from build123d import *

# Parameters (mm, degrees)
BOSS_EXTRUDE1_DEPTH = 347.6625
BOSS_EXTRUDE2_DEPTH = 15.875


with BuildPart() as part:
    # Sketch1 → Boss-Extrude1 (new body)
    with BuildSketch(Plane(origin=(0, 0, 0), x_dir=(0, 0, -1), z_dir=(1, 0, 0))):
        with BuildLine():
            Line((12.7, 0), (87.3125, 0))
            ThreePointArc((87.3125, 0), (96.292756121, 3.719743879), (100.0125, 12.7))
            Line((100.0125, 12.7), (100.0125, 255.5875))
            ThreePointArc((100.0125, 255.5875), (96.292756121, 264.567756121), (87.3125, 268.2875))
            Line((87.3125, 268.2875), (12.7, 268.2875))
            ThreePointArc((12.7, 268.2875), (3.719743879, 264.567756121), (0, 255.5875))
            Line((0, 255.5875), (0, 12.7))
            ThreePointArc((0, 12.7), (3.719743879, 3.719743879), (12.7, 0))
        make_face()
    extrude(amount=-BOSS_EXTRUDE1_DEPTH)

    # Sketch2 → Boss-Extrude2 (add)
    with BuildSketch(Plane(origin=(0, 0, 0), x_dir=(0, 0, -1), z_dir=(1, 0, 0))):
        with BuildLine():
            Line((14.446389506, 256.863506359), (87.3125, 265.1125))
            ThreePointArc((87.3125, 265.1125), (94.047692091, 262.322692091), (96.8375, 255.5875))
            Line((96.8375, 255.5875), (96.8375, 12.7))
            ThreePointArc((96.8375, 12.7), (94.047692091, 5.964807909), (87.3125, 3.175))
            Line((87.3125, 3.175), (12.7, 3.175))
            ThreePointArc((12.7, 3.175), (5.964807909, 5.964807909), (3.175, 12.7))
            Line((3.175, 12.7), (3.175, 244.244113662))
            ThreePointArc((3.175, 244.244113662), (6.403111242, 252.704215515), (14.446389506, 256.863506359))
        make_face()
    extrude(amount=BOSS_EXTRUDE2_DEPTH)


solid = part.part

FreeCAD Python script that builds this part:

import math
import FreeCAD as App
import Part
import Sketcher
from FreeCAD import Vector
Q = App.Units.Quantity

doc = App.newDocument("Part")
body = doc.addObject("PartDesign::Body", "Body")

sketch1 = doc.addObject("Sketcher::SketchObject", "Sketch")
body.addObject(sketch1)
sketch1.AttachmentSupport = (doc.YZ_Plane, [""])
sketch1.MapMode = "FlatFace"
sketch1.addGeometry([
    Part.LineSegment(Vector(0, -13, 0), Vector(0, -87, 0)),
    Part.ArcOfCircle(Part.Circle(Vector(13, -87, 0), Vector(0, 0, 1), 13), math.radians(180), math.radians(270)),
    Part.LineSegment(Vector(13, -100, 0), Vector(256, -100, 0)),
    Part.ArcOfCircle(Part.Circle(Vector(256, -87, 0), Vector(0, 0, 1), 13), math.radians(-90), math.radians(0)),
    Part.LineSegment(Vector(268, -87, 0), Vector(268, -13, 0)),
    Part.ArcOfCircle(Part.Circle(Vector(256, -13, 0), Vector(0, 0, 1), 13), math.radians(0), math.radians(90)),
    Part.LineSegment(Vector(256, 0, 0), Vector(13, 0, 0)),
    Part.ArcOfCircle(Part.Circle(Vector(13, -13, 0), Vector(0, 0, 1), 13), math.radians(90), math.radians(180)),
], False)
sketch1.addConstraint([
    Sketcher.Constraint("Tangent", 0, 2, 1, 1),
    Sketcher.Constraint("Tangent", 1, 2, 2, 1),
    Sketcher.Constraint("Tangent", 2, 2, 3, 1),
    Sketcher.Constraint("Tangent", 3, 2, 4, 1),
    Sketcher.Constraint("Tangent", 4, 2, 5, 1),
    Sketcher.Constraint("Tangent", 5, 2, 6, 1),
    Sketcher.Constraint("Tangent", 6, 2, 7, 1),
    Sketcher.Constraint("Tangent", 7, 2, 0, 1),
    Sketcher.Constraint("Vertical", 0),
    Sketcher.Constraint("Horizontal", 2),
    Sketcher.Constraint("Vertical", 4),
    Sketcher.Constraint("Horizontal", 6),
    Sketcher.Constraint("Equal", 1, 3),
    Sketcher.Constraint("Equal", 3, 5),
    Sketcher.Constraint("Equal", 5, 7),
    Sketcher.Constraint("PointOnObject", 0, 2, -2),
    Sketcher.Constraint("PointOnObject", 5, 2, -1),
    Sketcher.Constraint("Radius", 1, Q("0.5 in")),
    Sketcher.Constraint("DistanceX", 2, 1, 2, 2, Q("9.5625 in")),
    Sketcher.Constraint("DistanceY", 0, 2, 0, 1, Q("2.9375 in")),
])
pad1 = doc.addObject("PartDesign::Pad", "Pad")
body.addObject(pad1)
pad1.Profile = sketch1
pad1.Length = Q("13.6875 in")
pad1.Reversed = True

sketch2 = doc.addObject("Sketcher::SketchObject", "Sketch001")
body.addObject(sketch2)
sketch2.AttachmentSupport = (doc.YZ_Plane, [""])
sketch2.MapMode = "FlatFace"
sketch2.addGeometry([
    Part.LineSegment(Vector(265, -87, 0), Vector(257, -14, 0)),
    Part.ArcOfCircle(Part.Circle(Vector(244, -16, 0), Vector(0, 0, 1), 13), math.radians(6), math.radians(90)),
    Part.LineSegment(Vector(244, -3, 0), Vector(13, -3, 0)),
    Part.ArcOfCircle(Part.Circle(Vector(13, -13, 0), Vector(0, 0, 1), 10), math.radians(90), math.radians(180)),
    Part.LineSegment(Vector(3, -13, 0), Vector(3, -87, 0)),
    Part.ArcOfCircle(Part.Circle(Vector(13, -87, 0), Vector(0, 0, 1), 10), math.radians(180), math.radians(270)),
    Part.LineSegment(Vector(13, -97, 0), Vector(256, -97, 0)),
    Part.ArcOfCircle(Part.Circle(Vector(256, -87, 0), Vector(0, 0, 1), 10), math.radians(-90), math.radians(0)),
], False)
sketch2.addConstraint([
    Sketcher.Constraint("Tangent", 0, 2, 1, 1),
    Sketcher.Constraint("Tangent", 1, 2, 2, 1),
    Sketcher.Constraint("Tangent", 2, 2, 3, 1),
    Sketcher.Constraint("Tangent", 3, 2, 4, 1),
    Sketcher.Constraint("Tangent", 4, 2, 5, 1),
    Sketcher.Constraint("Tangent", 5, 2, 6, 1),
    Sketcher.Constraint("Tangent", 6, 2, 7, 1),
    Sketcher.Constraint("Coincident", 7, 2, 0, 1),
    Sketcher.Constraint("Horizontal", 2),
    Sketcher.Constraint("Vertical", 4),
    Sketcher.Constraint("Horizontal", 6),
    Sketcher.Constraint("Equal", 3, 5),
    Sketcher.Constraint("Equal", 5, 7),
    Sketcher.Constraint("Horizontal", 4, 2, 7, 2),
    Sketcher.Constraint("Radius", 1, Q("0.5 in")),
    Sketcher.Constraint("Radius", 3, Q("0.375 in")),
    Sketcher.Constraint("DistanceX", -1, 1, 3, 3, Q("0.5 in")),
    Sketcher.Constraint("DistanceY", 3, 3, -1, 1, Q("0.5 in")),
    Sketcher.Constraint("DistanceX", 6, 1, 6, 2, Q("9.5625 in")),
    Sketcher.Constraint("DistanceY", 4, 2, 4, 1, Q("2.9375 in")),
    Sketcher.Constraint("Distance", 0, Q("73.331548 mm")),
])
pad2 = doc.addObject("PartDesign::Pad", "Pad001")
body.addObject(pad2)
pad2.Profile = sketch2
pad2.Length = Q("0.625 in")

doc.recompute()
